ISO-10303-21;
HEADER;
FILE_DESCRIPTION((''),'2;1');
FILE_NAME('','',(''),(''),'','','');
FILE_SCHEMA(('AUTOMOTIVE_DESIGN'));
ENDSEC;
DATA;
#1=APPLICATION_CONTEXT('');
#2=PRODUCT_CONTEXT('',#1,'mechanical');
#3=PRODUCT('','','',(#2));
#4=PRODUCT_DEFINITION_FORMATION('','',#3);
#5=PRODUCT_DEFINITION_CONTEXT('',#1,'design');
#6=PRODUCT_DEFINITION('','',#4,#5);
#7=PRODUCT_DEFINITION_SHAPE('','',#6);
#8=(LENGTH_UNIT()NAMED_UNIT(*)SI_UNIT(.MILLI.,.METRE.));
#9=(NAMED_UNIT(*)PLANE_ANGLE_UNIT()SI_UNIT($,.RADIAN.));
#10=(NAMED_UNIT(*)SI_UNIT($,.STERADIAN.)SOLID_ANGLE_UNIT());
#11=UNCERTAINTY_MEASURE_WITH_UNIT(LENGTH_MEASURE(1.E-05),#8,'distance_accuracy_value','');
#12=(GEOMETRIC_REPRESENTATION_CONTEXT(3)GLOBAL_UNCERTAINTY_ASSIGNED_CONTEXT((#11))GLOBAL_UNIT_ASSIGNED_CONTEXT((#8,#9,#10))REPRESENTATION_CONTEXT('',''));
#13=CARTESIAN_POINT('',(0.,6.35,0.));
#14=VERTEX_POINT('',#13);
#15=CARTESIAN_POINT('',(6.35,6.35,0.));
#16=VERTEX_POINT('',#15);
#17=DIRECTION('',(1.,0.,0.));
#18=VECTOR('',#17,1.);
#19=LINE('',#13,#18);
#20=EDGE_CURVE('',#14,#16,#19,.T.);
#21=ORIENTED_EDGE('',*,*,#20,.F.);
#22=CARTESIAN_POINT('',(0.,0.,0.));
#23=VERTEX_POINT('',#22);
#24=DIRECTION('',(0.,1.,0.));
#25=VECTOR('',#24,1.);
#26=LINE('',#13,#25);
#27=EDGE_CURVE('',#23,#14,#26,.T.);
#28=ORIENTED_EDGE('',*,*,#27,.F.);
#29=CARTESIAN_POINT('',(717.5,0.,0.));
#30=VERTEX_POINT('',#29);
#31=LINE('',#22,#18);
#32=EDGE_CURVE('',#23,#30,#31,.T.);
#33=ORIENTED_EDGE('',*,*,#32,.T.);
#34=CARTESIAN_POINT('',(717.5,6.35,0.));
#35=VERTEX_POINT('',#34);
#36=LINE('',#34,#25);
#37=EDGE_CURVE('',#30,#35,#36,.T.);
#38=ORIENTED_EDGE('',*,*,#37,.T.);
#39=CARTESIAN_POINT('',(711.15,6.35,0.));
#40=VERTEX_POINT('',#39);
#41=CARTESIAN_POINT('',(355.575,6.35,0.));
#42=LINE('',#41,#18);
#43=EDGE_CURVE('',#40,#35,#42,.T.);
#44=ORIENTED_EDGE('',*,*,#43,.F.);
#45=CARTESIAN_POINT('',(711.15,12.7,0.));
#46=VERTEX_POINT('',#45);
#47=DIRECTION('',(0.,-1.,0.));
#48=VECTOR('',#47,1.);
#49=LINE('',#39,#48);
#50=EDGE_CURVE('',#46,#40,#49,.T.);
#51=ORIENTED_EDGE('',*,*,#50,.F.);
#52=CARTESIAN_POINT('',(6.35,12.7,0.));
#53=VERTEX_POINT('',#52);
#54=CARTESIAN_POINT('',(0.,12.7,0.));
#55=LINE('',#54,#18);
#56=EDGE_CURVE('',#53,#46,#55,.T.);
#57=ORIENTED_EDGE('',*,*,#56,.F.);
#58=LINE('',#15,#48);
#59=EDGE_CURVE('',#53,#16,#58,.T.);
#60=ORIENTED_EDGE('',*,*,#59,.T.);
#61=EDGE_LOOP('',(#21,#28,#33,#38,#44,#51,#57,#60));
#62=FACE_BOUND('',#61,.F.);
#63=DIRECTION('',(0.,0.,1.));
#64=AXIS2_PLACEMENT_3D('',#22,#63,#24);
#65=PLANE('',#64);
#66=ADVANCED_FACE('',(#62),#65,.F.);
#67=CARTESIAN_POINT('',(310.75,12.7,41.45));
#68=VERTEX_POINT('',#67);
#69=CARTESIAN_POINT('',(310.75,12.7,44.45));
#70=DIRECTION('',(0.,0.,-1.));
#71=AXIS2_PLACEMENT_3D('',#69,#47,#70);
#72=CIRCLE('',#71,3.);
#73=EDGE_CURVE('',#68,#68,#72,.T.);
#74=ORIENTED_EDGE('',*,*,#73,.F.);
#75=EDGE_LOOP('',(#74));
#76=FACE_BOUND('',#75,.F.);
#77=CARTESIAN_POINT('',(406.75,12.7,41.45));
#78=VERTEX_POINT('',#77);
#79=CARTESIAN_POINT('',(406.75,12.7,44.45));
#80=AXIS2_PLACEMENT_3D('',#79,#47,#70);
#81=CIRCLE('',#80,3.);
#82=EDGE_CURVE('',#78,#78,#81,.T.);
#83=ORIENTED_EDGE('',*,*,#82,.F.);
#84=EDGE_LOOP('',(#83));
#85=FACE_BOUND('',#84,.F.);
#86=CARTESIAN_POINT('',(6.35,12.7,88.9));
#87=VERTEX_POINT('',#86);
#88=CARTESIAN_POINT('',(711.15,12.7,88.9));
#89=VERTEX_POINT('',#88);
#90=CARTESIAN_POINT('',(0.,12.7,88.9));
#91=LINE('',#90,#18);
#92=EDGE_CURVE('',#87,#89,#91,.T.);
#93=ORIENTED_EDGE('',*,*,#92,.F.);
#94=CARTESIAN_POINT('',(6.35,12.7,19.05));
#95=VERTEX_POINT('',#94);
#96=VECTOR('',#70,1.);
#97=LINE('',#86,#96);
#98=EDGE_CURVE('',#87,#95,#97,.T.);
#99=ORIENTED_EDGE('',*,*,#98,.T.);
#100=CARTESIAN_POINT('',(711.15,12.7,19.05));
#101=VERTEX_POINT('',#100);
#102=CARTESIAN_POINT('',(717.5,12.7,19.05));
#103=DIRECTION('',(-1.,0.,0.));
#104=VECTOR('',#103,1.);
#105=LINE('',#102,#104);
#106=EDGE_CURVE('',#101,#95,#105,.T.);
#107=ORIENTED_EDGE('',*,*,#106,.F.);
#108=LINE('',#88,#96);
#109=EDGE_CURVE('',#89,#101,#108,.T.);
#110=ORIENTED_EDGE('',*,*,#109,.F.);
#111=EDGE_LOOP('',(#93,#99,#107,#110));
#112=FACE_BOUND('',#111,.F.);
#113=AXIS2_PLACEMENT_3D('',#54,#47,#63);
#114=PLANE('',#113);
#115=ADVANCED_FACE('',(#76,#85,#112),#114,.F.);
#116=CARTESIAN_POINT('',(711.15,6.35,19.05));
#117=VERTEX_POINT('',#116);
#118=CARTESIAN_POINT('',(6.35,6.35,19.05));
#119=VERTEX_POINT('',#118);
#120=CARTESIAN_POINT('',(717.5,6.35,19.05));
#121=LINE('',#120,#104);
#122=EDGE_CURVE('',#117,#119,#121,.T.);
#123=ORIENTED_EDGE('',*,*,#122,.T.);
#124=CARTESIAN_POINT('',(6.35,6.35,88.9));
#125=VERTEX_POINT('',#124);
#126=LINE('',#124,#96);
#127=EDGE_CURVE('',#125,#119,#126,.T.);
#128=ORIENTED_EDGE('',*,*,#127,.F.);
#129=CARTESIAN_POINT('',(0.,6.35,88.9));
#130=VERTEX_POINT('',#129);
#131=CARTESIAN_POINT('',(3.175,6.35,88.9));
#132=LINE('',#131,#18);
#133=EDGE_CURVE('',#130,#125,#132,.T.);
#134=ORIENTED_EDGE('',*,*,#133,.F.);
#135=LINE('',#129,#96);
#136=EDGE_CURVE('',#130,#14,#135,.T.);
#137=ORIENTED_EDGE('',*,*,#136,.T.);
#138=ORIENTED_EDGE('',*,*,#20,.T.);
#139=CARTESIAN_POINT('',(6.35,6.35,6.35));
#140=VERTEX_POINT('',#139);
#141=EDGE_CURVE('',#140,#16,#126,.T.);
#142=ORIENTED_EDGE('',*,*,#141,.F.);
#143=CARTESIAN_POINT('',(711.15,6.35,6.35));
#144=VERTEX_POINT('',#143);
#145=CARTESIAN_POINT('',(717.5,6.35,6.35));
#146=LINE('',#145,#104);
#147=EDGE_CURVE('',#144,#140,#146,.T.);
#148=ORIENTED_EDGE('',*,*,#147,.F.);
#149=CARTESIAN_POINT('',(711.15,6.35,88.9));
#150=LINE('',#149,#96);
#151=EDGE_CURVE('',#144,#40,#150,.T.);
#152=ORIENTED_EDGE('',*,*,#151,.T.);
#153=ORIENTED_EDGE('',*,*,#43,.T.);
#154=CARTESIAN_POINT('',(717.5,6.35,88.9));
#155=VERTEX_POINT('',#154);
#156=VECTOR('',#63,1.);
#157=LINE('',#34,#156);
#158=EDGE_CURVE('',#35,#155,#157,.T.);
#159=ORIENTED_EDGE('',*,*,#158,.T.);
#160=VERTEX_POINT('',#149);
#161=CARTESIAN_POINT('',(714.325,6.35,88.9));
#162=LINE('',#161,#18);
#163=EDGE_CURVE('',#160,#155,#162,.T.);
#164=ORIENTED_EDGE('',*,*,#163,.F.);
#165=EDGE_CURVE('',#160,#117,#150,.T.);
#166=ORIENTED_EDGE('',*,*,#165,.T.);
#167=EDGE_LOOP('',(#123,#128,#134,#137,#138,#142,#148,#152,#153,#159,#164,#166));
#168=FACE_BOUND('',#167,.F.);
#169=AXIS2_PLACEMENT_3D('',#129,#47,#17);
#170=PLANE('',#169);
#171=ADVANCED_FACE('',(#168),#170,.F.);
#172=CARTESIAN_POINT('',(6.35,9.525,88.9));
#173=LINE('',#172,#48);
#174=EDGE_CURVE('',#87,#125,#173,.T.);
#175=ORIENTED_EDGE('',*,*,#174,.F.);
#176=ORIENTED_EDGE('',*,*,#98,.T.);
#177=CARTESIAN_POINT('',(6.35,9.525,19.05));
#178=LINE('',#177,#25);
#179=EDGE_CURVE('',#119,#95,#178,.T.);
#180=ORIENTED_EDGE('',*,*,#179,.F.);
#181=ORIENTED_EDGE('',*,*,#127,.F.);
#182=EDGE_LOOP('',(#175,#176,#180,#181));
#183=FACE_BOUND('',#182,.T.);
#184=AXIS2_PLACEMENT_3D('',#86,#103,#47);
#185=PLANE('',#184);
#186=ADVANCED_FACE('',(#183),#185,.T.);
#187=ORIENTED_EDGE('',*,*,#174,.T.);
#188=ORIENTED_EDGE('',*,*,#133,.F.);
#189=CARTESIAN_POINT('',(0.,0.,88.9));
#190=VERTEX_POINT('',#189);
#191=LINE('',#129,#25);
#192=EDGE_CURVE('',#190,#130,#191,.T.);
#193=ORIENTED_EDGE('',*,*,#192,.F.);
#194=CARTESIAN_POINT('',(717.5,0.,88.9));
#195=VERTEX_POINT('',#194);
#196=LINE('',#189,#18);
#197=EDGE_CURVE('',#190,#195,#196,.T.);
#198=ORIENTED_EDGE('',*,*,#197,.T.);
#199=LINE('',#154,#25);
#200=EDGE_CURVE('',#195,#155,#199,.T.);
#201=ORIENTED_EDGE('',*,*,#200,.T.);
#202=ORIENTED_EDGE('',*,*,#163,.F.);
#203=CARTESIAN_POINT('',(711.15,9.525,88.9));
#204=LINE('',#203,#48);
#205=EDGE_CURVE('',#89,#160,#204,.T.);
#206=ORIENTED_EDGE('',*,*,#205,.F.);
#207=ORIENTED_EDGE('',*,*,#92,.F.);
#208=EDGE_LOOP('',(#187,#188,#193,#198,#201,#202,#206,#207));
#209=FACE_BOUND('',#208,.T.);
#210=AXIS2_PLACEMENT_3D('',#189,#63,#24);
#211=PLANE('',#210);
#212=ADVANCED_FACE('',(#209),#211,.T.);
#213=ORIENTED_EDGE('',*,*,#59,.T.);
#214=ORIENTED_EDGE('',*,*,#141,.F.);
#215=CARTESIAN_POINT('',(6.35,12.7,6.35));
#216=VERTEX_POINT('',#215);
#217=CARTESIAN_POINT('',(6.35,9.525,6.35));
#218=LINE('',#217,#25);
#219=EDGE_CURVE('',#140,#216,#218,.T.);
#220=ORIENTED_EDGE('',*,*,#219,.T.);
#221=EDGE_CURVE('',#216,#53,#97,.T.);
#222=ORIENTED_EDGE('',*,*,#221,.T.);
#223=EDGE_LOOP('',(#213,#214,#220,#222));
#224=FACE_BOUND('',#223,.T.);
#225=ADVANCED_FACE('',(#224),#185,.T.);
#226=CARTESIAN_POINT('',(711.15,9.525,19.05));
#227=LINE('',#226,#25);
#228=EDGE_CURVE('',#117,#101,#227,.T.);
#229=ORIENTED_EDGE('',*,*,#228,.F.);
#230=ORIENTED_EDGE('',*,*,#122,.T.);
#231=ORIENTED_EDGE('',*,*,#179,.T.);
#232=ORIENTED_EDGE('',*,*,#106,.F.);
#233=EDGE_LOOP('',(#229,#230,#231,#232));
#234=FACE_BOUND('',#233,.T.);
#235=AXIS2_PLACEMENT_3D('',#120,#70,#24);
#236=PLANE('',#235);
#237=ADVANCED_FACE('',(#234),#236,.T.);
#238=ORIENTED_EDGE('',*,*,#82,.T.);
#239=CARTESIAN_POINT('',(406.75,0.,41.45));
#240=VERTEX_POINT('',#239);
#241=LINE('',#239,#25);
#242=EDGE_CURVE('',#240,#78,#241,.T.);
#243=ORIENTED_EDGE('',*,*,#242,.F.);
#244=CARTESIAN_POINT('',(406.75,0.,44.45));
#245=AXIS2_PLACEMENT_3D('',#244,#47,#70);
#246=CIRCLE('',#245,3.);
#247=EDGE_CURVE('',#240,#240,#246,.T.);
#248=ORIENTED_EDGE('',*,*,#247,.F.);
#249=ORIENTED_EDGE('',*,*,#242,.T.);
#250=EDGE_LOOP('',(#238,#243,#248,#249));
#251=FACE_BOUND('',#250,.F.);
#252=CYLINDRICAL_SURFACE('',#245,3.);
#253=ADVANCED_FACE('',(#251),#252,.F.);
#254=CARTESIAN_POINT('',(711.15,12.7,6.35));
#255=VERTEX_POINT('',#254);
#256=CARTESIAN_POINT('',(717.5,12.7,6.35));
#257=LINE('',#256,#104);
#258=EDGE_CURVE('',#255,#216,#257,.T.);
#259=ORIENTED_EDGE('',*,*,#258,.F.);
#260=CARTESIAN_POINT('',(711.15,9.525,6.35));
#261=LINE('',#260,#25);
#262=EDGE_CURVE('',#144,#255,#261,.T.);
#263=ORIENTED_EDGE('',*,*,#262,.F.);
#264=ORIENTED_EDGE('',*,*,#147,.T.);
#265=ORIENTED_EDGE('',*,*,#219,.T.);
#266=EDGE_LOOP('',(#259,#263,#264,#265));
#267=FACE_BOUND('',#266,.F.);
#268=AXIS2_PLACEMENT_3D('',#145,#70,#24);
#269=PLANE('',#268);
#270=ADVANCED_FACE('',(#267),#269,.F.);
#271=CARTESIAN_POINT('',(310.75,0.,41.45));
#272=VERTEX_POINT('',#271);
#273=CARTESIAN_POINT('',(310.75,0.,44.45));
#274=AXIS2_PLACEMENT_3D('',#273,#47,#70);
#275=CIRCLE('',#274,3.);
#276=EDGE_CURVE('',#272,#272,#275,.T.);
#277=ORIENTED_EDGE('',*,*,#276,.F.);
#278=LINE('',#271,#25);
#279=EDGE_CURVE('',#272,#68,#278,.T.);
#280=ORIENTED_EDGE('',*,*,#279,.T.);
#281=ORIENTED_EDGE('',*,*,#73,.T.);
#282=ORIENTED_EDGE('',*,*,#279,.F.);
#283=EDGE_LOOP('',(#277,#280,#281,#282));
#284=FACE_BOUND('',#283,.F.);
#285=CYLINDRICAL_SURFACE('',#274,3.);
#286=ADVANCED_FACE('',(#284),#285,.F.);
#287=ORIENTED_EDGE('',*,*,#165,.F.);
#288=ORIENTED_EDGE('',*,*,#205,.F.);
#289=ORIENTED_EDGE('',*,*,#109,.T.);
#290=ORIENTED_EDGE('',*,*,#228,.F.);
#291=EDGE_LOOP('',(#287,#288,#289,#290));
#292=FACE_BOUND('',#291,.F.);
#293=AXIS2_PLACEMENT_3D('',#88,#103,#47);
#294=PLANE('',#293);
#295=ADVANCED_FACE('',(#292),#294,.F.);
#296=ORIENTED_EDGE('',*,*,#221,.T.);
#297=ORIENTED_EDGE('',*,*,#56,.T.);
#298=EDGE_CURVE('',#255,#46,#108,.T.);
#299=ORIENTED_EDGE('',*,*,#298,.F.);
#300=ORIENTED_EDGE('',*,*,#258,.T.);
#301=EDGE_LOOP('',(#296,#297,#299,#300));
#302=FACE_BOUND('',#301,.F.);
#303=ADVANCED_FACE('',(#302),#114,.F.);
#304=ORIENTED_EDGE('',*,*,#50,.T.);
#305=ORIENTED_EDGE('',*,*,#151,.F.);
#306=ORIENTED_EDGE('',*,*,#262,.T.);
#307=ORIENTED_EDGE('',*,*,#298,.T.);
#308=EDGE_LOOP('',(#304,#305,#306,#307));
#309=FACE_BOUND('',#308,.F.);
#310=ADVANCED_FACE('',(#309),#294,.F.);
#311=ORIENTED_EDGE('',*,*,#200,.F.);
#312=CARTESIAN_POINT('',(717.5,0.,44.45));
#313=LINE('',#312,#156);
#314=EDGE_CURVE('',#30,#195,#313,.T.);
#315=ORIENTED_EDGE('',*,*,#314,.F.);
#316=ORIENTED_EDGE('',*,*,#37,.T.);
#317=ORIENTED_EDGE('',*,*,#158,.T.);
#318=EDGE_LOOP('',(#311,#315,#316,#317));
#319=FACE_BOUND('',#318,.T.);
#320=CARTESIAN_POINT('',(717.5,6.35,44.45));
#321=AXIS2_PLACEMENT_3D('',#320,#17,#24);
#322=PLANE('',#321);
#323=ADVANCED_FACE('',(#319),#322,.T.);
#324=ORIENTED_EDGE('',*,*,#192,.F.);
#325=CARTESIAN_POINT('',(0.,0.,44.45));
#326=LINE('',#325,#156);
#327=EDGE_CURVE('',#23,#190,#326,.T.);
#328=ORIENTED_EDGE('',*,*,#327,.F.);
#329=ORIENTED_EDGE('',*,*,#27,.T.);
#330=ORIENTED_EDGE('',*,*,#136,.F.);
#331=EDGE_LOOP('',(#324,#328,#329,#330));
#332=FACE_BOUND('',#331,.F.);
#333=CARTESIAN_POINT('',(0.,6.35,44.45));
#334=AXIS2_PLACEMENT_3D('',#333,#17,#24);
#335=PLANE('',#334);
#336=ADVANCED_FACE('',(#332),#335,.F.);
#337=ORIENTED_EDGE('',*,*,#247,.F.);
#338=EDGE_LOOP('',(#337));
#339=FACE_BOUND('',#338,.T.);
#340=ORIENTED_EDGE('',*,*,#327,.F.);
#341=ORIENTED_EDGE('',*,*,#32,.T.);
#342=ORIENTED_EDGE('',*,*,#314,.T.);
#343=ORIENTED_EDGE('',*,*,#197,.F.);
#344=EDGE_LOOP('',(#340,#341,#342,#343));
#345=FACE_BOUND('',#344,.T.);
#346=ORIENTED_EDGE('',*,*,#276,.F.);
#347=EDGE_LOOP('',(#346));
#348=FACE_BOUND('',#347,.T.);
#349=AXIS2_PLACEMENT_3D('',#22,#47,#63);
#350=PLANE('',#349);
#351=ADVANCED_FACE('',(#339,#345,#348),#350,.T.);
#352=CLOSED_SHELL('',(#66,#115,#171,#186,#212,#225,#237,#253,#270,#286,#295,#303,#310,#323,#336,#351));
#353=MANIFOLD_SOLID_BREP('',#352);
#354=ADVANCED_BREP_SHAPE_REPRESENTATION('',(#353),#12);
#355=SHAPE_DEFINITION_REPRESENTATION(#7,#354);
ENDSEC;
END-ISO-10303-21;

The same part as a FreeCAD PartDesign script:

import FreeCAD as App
import Part
import Sketcher
from FreeCAD import Vector
Q = App.Units.Quantity


def add_polygon(sketch, points):
    """Adds a closed chain of lines whose ends are joined by coincident constraints."""
    first, n = sketch.GeometryCount, len(points)
    for a, b in zip(points, points[1:] + points[:1]):
        sketch.addGeometry(Part.LineSegment(App.Vector(*a, 0), App.Vector(*b, 0)), False)
    for i in range(n):
        sketch.addConstraint(Sketcher.Constraint("Coincident", first + i, 2, first + (i + 1) % n, 1))

doc = App.newDocument("Part")
body = doc.addObject("PartDesign::Body", "Body")

# Sketch on YZ plane
sketch1 = doc.addObject("Sketcher::SketchObject", "Sketch")
body.addObject(sketch1)
sketch1.AttachmentSupport = (doc.YZ_Plane, [""])
sketch1.MapMode = "FlatFace"
add_polygon(sketch1, [(0, 89), (0, 0), (13, 0), (13, 89)])  # lines 0-3
sketch1.addConstraint([
    Sketcher.Constraint("Vertical", 0),
    Sketcher.Constraint("Horizontal", 1),
    Sketcher.Constraint("Vertical", 2),
    Sketcher.Constraint("Horizontal", 3),
    Sketcher.Constraint("Coincident", 0, 2, -1, 1),
    Sketcher.Constraint("DistanceX", 1, 1, 1, 2, Q("0.5 in")),
    Sketcher.Constraint("DistanceY", 0, 2, 0, 1, Q("3.5 in")),
])
pad1 = doc.addObject("PartDesign::Pad", "Pad")
body.addObject(pad1)
pad1.Profile = sketch1
pad1.Length = 717.5

# Sketch on YZ plane
sketch2 = doc.addObject("Sketcher::SketchObject", "Sketch001")
body.addObject(sketch2)
sketch2.AttachmentSupport = (doc.YZ_Plane, [""])
sketch2.MapMode = "FlatFace"
sketch2.AttachmentOffset = App.Placement(Vector(0, 0, 717.5), App.Rotation())
add_polygon(sketch2, [(6, 19), (6, 6), (13, 6), (13, 19)])  # lines 0-3
sketch2.addConstraint([
    Sketcher.Constraint("Vertical", 0),
    Sketcher.Constraint("Horizontal", 1),
    Sketcher.Constraint("Vertical", 2),
    Sketcher.Constraint("Horizontal", 3),
    Sketcher.Constraint("DistanceY", 0, 2, 0, 1, Q("0.5 in")),
    Sketcher.Constraint("DistanceX", 1, 1, 1, 2, Q("0.25 in")),
    Sketcher.Constraint("DistanceX", -1, 1, 1, 2, Q("0.5 in")),
    Sketcher.Constraint("DistanceY", -1, 1, 0, 2, Q("0.25 in")),
])
pocket1 = doc.addObject("PartDesign::Pocket", "Pocket")
body.addObject(pocket1)
pocket1.Profile = sketch2
pocket1.Type = "ThroughAll"

# Sketch on XY plane
sketch3 = doc.addObject("Sketcher::SketchObject", "Sketch002")
body.addObject(sketch3)
sketch3.AttachmentSupport = (doc.XY_Plane, [""])
sketch3.MapMode = "FlatFace"
sketch3.AttachmentOffset = App.Placement(Vector(0, 0, 3.5 * 25.4), App.Rotation())
add_polygon(sketch3, [(718, 13), (711, 13), (711, 6), (718, 6)])  # lines 0-3
add_polygon(sketch3, [(6, 13), (0, 13), (0, 6), (6, 6)])  # lines 4-7
sketch3.addConstraint([
    Sketcher.Constraint("Horizontal", 0),
    Sketcher.Constraint("Vertical", 1),
    Sketcher.Constraint("Horizontal", 2),
    Sketcher.Constraint("Vertical", 3),
    Sketcher.Constraint("Horizontal", 4),
    Sketcher.Constraint("Vertical", 5),
    Sketcher.Constraint("Horizontal", 6),
    Sketcher.Constraint("Vertical", 7),
    Sketcher.Constraint("PointOnObject", 4, 2, -2),
    Sketcher.Constraint("Horizontal", 3, 2, 4, 2),
    Sketcher.Constraint("Horizontal", 2, 2, 5, 2),
    Sketcher.Constraint("Equal", 2, 4),
    Sketcher.Constraint("Equal", 6, 1),
    Sketcher.Constraint("DistanceX", 0, 2, 0, 1, Q("0.25 in")),
    Sketcher.Constraint("DistanceY", -1, 1, 0, 2, Q("0.5 in")),
    Sketcher.Constraint("DistanceX", -1, 1, 0, 2, Q("711.15 mm")),
])
pocket2 = doc.addObject("PartDesign::Pocket", "Pocket001")
body.addObject(pocket2)
pocket2.Profile = sketch3
pocket2.Type = "ThroughAll"

# Sketch on XZ plane
sketch4 = doc.addObject("Sketcher::SketchObject", "Sketch003")
body.addObject(sketch4)
sketch4.AttachmentSupport = (doc.XZ_Plane, [""])
sketch4.MapMode = "FlatFace"
sketch4.addGeometry([
    Part.Circle(Vector(310.8, 44.5, 0), Vector(0, 0, 1), 3),
    Part.Circle(Vector(406.8, 44.5, 0), Vector(0, 0, 1), 3),
], False)
sketch4.addConstraint([
    Sketcher.Constraint("Equal", 0, 1),
    Sketcher.Constraint("Horizontal", 0, 3, 1, 3),
    Sketcher.Constraint("Diameter", 0, Q("6 mm")),
    Sketcher.Constraint("DistanceY", -1, 1, 0, 3, Q("1.75 in")),
    Sketcher.Constraint("DistanceX", -1, 1, 0, 3, Q("310.75 mm")),
    Sketcher.Constraint("DistanceX", -1, 1, 1, 3, Q("406.75 mm")),
])
pocket3 = doc.addObject("PartDesign::Pocket", "Pocket002")
body.addObject(pocket3)
pocket3.Profile = sketch4
pocket3.Type = "ThroughAll"

doc.recompute()
